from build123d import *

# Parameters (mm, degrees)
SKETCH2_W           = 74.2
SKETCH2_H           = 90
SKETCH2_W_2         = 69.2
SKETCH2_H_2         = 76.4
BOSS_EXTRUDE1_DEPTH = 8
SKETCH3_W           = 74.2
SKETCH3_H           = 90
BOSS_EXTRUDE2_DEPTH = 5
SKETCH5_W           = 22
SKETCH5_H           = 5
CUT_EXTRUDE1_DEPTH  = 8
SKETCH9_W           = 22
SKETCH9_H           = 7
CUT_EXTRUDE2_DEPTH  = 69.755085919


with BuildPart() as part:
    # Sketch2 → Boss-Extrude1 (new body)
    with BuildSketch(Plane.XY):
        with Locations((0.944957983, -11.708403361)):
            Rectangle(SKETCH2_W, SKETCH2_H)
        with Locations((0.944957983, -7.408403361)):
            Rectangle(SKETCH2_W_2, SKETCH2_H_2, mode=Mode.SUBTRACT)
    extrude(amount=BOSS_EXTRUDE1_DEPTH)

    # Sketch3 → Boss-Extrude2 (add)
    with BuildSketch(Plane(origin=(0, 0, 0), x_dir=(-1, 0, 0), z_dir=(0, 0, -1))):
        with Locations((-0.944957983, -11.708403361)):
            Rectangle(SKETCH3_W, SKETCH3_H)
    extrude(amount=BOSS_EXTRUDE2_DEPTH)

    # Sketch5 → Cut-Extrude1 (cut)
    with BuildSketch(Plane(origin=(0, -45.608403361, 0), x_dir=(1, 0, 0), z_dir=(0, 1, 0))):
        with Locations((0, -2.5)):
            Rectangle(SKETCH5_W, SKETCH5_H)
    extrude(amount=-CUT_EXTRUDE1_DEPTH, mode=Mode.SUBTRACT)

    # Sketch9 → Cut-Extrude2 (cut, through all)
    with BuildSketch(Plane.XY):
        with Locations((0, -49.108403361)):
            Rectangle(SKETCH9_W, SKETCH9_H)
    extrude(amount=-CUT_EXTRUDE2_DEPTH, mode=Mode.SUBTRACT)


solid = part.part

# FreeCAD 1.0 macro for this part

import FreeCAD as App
import Part
import Sketcher
from FreeCAD import Vector


def add_polygon(sketch, points):
    """Adds a closed chain of lines whose ends are joined by coincident constraints."""
    first, n = sketch.GeometryCount, len(points)
    for a, b in zip(points, points[1:] + points[:1]):
        sketch.addGeometry(Part.LineSegment(App.Vector(*a, 0), App.Vector(*b, 0)), False)
    for i in range(n):
        sketch.addConstraint(Sketcher.Constraint("Coincident", first + i, 2, first + (i + 1) % n, 1))

doc = App.newDocument("Part")
body = doc.addObject("PartDesign::Body", "Body")

# Sketch on XY plane
sketch1 = doc.addObject("Sketcher::SketchObject", "Sketch")
body.addObject(sketch1)
sketch1.AttachmentSupport = (doc.XY_Plane, [""])
sketch1.MapMode = "FlatFace"
add_polygon(sketch1, [(-36, 33), (-36, -57), (38, -57), (38, 33)])  # lines 0-3
add_polygon(sketch1, [(36, -46), (-34, -46), (-34, 31), (36, 31)])  # lines 4-7
sketch1.addConstraint([
    Sketcher.Constraint("Vertical", 0),
    Sketcher.Constraint("Horizontal", 1),
    Sketcher.Constraint("Vertical", 2),
    Sketcher.Constraint("Horizontal", 3),
    Sketcher.Constraint("Horizontal", 4),
    Sketcher.Constraint("Vertical", 5),
    Sketcher.Constraint("Horizontal", 6),
    Sketcher.Constraint("Vertical", 7),
    Sketcher.Constraint("DistanceY", 0, 2, 0, 1, 90.0),
    Sketcher.Constraint("DistanceX", 1, 1, 1, 2, 74.2),
    Sketcher.Constraint("DistanceX", 4, 2, 4, 1, 69.2),
    Sketcher.Constraint("DistanceY", 5, 1, 5, 2, 76.4),
    Sketcher.Constraint("DistanceX", 0, 2, 4, 2, 2.5),
    Sketcher.Constraint("DistanceY", 0, 2, 4, 2, 11.1),
    Sketcher.Constraint("DistanceX", 0, 2, -1, 1, 36.155042),
    Sketcher.Constraint("DistanceY", 0, 2, -1, 1, 56.708403),
])
pad1 = doc.addObject("PartDesign::Pad", "Pad")
body.addObject(pad1)
pad1.Profile = sketch1
pad1.Length = 8

# Sketch on XY plane
sketch2 = doc.addObject("Sketcher::SketchObject", "Sketch001")
body.addObject(sketch2)
sketch2.AttachmentSupport = (doc.XY_Plane, [""])
sketch2.MapMode = "FlatFace"
add_polygon(sketch2, [(38, 33), (38, -57), (-36, -57), (-36, 33)])  # lines 0-3
sketch2.addConstraint([
    Sketcher.Constraint("Vertical", 0),
    Sketcher.Constraint("Horizontal", 1),
    Sketcher.Constraint("Vertical", 2),
    Sketcher.Constraint("Horizontal", 3),
    Sketcher.Constraint("DistanceY", 0, 2, 0, 1, 90.0),
    Sketcher.Constraint("DistanceX", 1, 2, 1, 1, 74.2),
    Sketcher.Constraint("DistanceX", -1, 1, 0, 2, 38.044958),
    Sketcher.Constraint("DistanceY", 0, 2, -1, 1, 56.708403),
])
pad2 = doc.addObject("PartDesign::Pad", "Pad001")
body.addObject(pad2)
pad2.Profile = sketch2
pad2.Length = 5
pad2.Reversed = True

# Sketch on XZ plane
sketch3 = doc.addObject("Sketcher::SketchObject", "Sketch002")
body.addObject(sketch3)
sketch3.AttachmentSupport = (doc.XZ_Plane, [""])
sketch3.MapMode = "FlatFace"
sketch3.AttachmentOffset = App.Placement(Vector(0, 0, 45.608403), App.Rotation())
add_polygon(sketch3, [(-11, 0), (-11, 5), (11, 5), (11, 0)])  # lines 0-3
sketch3.addConstraint([
    Sketcher.Constraint("Vertical", 0),
    Sketcher.Constraint("Horizontal", 1),
    Sketcher.Constraint("Vertical", 2),
    Sketcher.Constraint("Horizontal", 3),
    Sketcher.Constraint("Symmetric", 2, 2, 3, 2, -1, 1),
    Sketcher.Constraint("DistanceX", 1, 1, 1, 2, 22.0),
    Sketcher.Constraint("DistanceY", 0, 1, 0, 2, 5.0),
])
pocket1 = doc.addObject("PartDesign::Pocket", "Pocket")
body.addObject(pocket1)
pocket1.Profile = sketch3
pocket1.Length = 8
pocket1.Reversed = True

# Sketch on XY plane
sketch4 = doc.addObject("Sketcher::SketchObject", "Sketch003")
body.addObject(sketch4)
sketch4.AttachmentSupport = (doc.XY_Plane, [""])
sketch4.MapMode = "FlatFace"
add_polygon(sketch4, [(-11, -46), (-11, -53), (11, -53), (11, -46)])  # lines 0-3
sketch4.addConstraint([
    Sketcher.Constraint("Vertical", 0),
    Sketcher.Constraint("Horizontal", 1),
    Sketcher.Constraint("Vertical", 2),
    Sketcher.Constraint("Horizontal", 3),
    Sketcher.Constraint("DistanceX", 1, 1, 1, 2, 22.0),
    Sketcher.Constraint("DistanceY", 0, 2, 0, 1, 7.0),
    Sketcher.Constraint("DistanceX", 0, 2, -1, 1, 11.0),
    Sketcher.Constraint("DistanceY", 0, 2, -1, 1, 52.608403),
])
pocket2 = doc.addObject("PartDesign::Pocket", "Pocket001")
body.addObject(pocket2)
pocket2.Profile = sketch4
pocket2.Type = "ThroughAll"

doc.recompute()
